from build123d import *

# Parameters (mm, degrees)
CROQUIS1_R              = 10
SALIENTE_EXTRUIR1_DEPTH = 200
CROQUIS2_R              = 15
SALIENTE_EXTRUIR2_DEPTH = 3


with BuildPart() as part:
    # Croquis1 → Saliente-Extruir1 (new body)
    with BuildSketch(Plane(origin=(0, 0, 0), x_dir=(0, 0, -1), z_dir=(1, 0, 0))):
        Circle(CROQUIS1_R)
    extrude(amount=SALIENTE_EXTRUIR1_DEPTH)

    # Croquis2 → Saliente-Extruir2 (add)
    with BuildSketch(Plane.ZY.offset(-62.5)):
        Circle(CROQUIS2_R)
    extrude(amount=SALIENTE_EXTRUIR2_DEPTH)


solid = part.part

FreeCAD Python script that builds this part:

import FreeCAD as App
import Part
import Sketcher

V = App.Vector
Q = App.Units.Quantity

doc = App.newDocument("Part")
body = doc.addObject("PartDesign::Body", "Body")

# Sketch on YZ plane
sketch1 = body.newObject("Sketcher::SketchObject", "Sketch")
sketch1.AttachmentSupport = (doc.getObject("YZ_Plane"), [""])
sketch1.MapMode = "FlatFace"
sketch1.addGeometry(Part.Circle(V(0, 0, 0), V(0, 0, 1), 10), False)
sketch1.addConstraint([
    Sketcher.Constraint("Coincident", 0, 3, -1, 1),
    Sketcher.Constraint("Diameter", 0, Q("20 mm")),
])
pad1 = body.newObject("PartDesign::Pad", "Pad")
pad1.Profile = sketch1
pad1.Length = 200

# Sketch on YZ plane
sketch2 = body.newObject("Sketcher::SketchObject", "Sketch001")
sketch2.AttachmentSupport = (doc.getObject("YZ_Plane"), [""])
sketch2.MapMode = "FlatFace"
sketch2.AttachmentOffset = App.Placement(V(0, 0, 62.5), App.Rotation())
sketch2.addGeometry(Part.Circle(V(0, 0, 0), V(0, 0, 1), 15), False)
sketch2.addConstraint([
    Sketcher.Constraint("Coincident", 0, 3, -1, 1),
    Sketcher.Constraint("Diameter", 0, Q("30 mm")),
])
pad2 = body.newObject("PartDesign::Pad", "Pad001")
pad2.Profile = sketch2
pad2.Length = 3
pad2.Reversed = True

doc.recompute()
